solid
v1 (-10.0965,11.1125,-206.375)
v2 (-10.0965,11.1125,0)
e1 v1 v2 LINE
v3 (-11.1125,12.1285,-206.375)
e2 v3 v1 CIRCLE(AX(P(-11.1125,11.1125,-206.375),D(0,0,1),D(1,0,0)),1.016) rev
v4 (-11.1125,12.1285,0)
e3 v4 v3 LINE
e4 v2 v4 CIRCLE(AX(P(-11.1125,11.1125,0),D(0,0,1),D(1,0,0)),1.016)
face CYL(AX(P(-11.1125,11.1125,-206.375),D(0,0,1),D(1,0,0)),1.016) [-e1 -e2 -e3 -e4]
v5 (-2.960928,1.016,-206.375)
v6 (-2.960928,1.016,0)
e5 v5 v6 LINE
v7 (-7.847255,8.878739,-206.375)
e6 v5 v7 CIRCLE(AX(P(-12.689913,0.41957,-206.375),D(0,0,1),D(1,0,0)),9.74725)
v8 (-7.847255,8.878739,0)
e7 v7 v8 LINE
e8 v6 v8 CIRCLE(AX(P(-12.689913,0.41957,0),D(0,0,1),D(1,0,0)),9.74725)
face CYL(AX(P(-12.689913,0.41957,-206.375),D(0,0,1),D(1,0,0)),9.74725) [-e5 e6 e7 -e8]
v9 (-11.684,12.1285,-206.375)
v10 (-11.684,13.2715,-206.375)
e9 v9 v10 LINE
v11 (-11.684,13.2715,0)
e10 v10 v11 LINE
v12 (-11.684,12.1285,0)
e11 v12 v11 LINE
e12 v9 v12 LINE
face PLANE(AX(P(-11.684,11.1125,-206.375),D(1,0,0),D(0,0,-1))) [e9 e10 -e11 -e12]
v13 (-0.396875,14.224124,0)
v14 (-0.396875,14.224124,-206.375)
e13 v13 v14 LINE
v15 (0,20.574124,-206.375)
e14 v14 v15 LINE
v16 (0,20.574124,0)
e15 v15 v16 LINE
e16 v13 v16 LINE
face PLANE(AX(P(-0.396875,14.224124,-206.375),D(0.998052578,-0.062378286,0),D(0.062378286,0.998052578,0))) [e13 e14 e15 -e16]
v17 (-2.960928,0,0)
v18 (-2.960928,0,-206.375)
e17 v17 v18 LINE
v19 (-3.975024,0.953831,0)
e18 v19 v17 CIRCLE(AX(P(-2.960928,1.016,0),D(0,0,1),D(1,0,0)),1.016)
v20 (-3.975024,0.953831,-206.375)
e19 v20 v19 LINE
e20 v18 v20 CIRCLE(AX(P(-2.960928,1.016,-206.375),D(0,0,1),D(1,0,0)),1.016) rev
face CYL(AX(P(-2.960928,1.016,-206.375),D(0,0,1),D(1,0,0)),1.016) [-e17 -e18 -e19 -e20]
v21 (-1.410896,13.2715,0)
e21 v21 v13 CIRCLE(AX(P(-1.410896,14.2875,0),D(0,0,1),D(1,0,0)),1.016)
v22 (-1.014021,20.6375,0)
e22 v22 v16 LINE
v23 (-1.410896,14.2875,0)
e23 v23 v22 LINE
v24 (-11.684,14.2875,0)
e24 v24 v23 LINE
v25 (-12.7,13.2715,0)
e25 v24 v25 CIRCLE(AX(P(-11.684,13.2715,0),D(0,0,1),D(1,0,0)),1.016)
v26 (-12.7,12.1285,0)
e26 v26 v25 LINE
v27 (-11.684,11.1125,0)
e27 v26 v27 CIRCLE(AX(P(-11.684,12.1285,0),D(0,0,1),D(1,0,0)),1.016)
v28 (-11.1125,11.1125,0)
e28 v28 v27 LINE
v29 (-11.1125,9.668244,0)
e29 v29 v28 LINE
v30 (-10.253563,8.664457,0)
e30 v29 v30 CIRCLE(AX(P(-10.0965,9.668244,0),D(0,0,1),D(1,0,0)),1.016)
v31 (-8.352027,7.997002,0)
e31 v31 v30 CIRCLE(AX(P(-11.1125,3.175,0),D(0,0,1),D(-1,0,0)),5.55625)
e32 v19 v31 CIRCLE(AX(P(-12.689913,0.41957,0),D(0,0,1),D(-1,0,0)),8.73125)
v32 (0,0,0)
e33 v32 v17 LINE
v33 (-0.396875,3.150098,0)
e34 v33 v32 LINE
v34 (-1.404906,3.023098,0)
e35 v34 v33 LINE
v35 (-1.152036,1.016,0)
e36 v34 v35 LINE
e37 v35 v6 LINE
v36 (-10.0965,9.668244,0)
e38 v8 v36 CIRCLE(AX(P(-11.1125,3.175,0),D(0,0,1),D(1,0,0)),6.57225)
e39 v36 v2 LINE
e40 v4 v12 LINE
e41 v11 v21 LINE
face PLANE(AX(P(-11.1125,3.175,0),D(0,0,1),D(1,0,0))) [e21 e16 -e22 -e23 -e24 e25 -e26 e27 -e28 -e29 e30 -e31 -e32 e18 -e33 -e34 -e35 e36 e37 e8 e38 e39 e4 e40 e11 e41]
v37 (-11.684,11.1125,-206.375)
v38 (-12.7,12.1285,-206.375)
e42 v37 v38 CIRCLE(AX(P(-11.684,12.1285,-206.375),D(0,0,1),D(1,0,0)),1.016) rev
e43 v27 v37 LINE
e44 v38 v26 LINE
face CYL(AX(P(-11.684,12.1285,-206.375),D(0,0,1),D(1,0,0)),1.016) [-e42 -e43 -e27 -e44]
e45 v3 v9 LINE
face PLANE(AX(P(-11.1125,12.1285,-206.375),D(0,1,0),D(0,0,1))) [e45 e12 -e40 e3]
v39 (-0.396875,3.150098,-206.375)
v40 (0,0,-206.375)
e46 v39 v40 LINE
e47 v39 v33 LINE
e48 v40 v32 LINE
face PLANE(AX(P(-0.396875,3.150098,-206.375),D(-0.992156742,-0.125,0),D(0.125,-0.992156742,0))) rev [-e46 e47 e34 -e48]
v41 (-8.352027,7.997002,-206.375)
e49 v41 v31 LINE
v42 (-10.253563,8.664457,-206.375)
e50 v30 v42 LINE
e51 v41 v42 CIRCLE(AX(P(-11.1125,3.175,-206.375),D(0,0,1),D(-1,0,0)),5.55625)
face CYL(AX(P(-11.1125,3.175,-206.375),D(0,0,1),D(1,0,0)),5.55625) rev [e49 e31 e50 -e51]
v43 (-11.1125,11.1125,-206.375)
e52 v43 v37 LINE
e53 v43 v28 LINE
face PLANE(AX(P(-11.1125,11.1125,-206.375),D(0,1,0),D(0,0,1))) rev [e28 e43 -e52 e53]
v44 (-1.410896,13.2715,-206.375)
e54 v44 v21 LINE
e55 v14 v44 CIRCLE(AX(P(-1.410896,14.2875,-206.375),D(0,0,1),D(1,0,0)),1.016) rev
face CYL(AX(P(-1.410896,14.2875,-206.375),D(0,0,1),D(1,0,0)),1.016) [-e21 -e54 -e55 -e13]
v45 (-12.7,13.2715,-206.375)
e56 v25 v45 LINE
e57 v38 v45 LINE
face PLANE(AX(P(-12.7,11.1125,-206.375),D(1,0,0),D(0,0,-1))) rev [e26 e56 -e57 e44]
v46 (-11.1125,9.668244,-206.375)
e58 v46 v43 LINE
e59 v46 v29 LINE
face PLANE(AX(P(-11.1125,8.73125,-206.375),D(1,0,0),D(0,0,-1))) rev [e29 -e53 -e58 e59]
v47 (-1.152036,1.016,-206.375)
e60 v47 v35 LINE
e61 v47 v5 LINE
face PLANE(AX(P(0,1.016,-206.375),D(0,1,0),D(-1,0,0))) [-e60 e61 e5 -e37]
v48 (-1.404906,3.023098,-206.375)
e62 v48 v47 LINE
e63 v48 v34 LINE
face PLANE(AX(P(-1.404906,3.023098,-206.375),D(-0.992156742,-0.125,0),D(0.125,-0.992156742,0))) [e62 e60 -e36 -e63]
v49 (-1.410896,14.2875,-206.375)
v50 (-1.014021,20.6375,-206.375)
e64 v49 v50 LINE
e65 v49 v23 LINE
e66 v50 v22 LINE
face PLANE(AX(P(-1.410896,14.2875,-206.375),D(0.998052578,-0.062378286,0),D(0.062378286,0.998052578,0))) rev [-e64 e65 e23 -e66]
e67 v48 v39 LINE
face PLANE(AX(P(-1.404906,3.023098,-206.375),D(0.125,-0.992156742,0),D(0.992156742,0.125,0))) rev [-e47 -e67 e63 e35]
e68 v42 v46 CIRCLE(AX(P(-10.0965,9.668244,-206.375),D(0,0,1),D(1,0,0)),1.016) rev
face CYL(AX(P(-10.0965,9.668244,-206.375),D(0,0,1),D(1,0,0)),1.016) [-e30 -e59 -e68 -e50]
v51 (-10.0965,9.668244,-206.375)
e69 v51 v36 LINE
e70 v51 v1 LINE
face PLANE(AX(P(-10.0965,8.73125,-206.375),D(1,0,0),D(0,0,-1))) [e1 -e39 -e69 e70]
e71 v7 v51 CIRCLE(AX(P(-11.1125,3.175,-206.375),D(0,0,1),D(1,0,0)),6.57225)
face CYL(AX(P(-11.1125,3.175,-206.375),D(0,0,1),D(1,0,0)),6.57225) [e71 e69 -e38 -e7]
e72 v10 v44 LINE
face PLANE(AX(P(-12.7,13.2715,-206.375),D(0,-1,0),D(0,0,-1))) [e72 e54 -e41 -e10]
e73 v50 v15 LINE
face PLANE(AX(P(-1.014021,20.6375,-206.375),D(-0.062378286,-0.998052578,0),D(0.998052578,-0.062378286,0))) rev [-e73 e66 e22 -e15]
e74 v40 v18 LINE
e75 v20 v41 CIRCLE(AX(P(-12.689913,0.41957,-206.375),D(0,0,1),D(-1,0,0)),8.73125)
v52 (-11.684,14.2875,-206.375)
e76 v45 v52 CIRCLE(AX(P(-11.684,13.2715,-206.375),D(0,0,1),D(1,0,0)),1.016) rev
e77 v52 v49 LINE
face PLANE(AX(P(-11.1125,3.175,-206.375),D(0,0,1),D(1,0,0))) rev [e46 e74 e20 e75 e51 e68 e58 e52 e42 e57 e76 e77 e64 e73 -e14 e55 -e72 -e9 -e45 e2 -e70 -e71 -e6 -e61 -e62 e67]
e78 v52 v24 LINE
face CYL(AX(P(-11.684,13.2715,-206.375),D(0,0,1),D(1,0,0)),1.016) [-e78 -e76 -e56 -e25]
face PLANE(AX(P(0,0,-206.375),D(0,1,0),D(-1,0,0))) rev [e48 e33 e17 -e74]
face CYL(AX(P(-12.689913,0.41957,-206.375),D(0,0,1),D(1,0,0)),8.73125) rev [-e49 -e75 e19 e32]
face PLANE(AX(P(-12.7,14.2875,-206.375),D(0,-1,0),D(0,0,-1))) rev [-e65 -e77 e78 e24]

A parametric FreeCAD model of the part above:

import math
import FreeCAD as App
import Part
import Sketcher

V = App.Vector
Q = App.Units.Quantity


def edges_at(feature, points):
    """Names of the edges that pass closest to the given points."""
    edges = feature.Shape.Edges
    near = lambda p: min(range(len(edges)), key=lambda i: edges[i].distToShape(Part.Vertex(*p))[0])
    return sorted({f"Edge{near(p) + 1}" for p in points})

doc = App.newDocument("Part")
params = doc.addObject("Spreadsheet::Sheet", "Params")
for row, (alias, value) in enumerate([
    ("sketch1_radius", "0.21875 in"),
    ("sketch1_radius2", "0.34375 in"),
    ("sketch1_length", "0.04 in"),
    ("sketch1_width", "0.0625 in"),
    ("sketch1_width2", "0.15625 in"),
    ("pad1_length", "8.125 in"),
    ("fillet_radius", "0.04 in"),
], start=1):
    params.set(f"A{row}", alias)
    params.set(f"B{row}", "=" + value)
    params.setAlias(f"B{row}", alias)

body = doc.addObject("PartDesign::Body", "Body")

# Sketch on XY plane
sketch1 = body.newObject("Sketcher::SketchObject", "Sketch")
sketch1.AttachmentSupport = (doc.getObject("XY_Plane"), [""])
sketch1.MapMode = "FlatFace"
sketch1.addGeometry([
    Part.LineSegment(V(0, 0, 0), V(-0.4, 3.2, 0)),  # 0
    Part.LineSegment(V(-0.4, 3.2, 0), V(-1.4, 3, 0)),  # 1
    Part.LineSegment(V(-1.4, 3, 0), V(-1.2, 1, 0)),  # 2
    Part.LineSegment(V(-1.2, 1, 0), V(-3, 1, 0)),  # 3
    Part.ArcOfCircle(Part.Circle(V(-12.7, 0.4, 0), V(0, 0, 1), 9.7), math.radians(4), math.radians(60)),  # 4
    Part.ArcOfCircle(Part.Circle(V(-11.1, 3.2, 0), V(0, 0, 1), 6.6), math.radians(60), math.radians(81)),  # 5
    Part.LineSegment(V(-10.1, 9.7, 0), V(-10.1, 12.1, 0)),  # 6
    Part.LineSegment(V(-10.1, 12.1, 0), V(-11.7, 12.1, 0)),  # 7
    Part.LineSegment(V(-11.7, 12.1, 0), V(-11.7, 13.3, 0)),  # 8
    Part.LineSegment(V(-11.7, 13.3, 0), V(-0.5, 13.3, 0)),  # 9
    Part.LineSegment(V(-0.5, 13.3, 0), V(0, 20.6, 0)),  # 10
    Part.LineSegment(V(0, 20.6, 0), V(-1, 20.6, 0)),  # 11
    Part.LineSegment(V(-1, 20.6, 0), V(-1.4, 14.3, 0)),  # 12
    Part.LineSegment(V(-1.4, 14.3, 0), V(-12.7, 14.3, 0)),  # 13
    Part.LineSegment(V(-12.7, 14.3, 0), V(-12.7, 11.1, 0)),  # 14
    Part.LineSegment(V(-12.7, 11.1, 0), V(-11.1, 11.1, 0)),  # 15
    Part.LineSegment(V(-11.1, 11.1, 0), V(-11.1, 8.7, 0)),  # 16
    Part.ArcOfCircle(Part.Circle(V(-11.1, 3.2, 0), V(0, 0, 1), 5.6), math.radians(60), math.radians(90)),  # 17
    Part.ArcOfCircle(Part.Circle(V(-12.7, 0.4, 0), V(0, 0, 1), 8.7), math.radians(-3), math.radians(60)),  # 18
    Part.LineSegment(V(-4, 0, 0), V(0, 0, 0)),  # 19
], False)
sketch1.addConstraint([
    Sketcher.Constraint("Coincident", 0, 2, 1, 1),
    Sketcher.Constraint("Coincident", 1, 2, 2, 1),
    Sketcher.Constraint("Coincident", 2, 2, 3, 1),
    Sketcher.Constraint("Coincident", 3, 2, 4, 1),
    Sketcher.Constraint("Tangent", 4, 2, 5, 1),
    Sketcher.Constraint("Coincident", 5, 2, 6, 1),
    Sketcher.Constraint("Coincident", 6, 2, 7, 1),
    Sketcher.Constraint("Coincident", 7, 2, 8, 1),
    Sketcher.Constraint("Coincident", 8, 2, 9, 1),
    Sketcher.Constraint("Coincident", 9, 2, 10, 1),
    Sketcher.Constraint("Coincident", 10, 2, 11, 1),
    Sketcher.Constraint("Coincident", 11, 2, 12, 1),
    Sketcher.Constraint("Coincident", 12, 2, 13, 1),
    Sketcher.Constraint("Coincident", 13, 2, 14, 1),
    Sketcher.Constraint("Coincident", 14, 2, 15, 1),
    Sketcher.Constraint("Coincident", 15, 2, 16, 1),
    Sketcher.Constraint("Coincident", 16, 2, 17, 2),
    Sketcher.Constraint("Tangent", 17, 1, 18, 2),
    Sketcher.Constraint("Coincident", 18, 1, 19, 1),
    Sketcher.Constraint("Coincident", 19, 2, 0, 1),
    Sketcher.Constraint("Horizontal", 3),
    Sketcher.Constraint("Vertical", 6),
    Sketcher.Constraint("Horizontal", 7),
    Sketcher.Constraint("Vertical", 8),
    Sketcher.Constraint("Horizontal", 9),
    Sketcher.Constraint("Horizontal", 13),
    Sketcher.Constraint("Vertical", 14),
    Sketcher.Constraint("Horizontal", 15),
    Sketcher.Constraint("Vertical", 16),
    Sketcher.Constraint("Horizontal", 19),
    Sketcher.Constraint("Coincident", 19, 2, -1, 1),
    Sketcher.Constraint("Coincident", 17, 3, 5, 3),
    Sketcher.Constraint("Coincident", 18, 3, 4, 3),
    Sketcher.Constraint("PointOnObject", 10, 2, -2),
    Sketcher.Constraint("Perpendicular", 0, 1),
    Sketcher.Constraint("Perpendicular", 1, 2),
    Sketcher.Constraint("Perpendicular", 10, 11),
    Sketcher.Constraint("Perpendicular", 11, 12),
    Sketcher.Constraint("Vertical", 17, 3, 15, 2),
    Sketcher.Constraint("Equal", 7, 15),
    Sketcher.Constraint("Equal", 1, 11),
    Sketcher.Constraint("Radius", 17, Q("0.21875 in")),
    Sketcher.Constraint("Radius", 18, Q("0.34375 in")),
    Sketcher.Constraint("DistanceX", 13, 2, -1, 1, Q("0.5 in")),
    Sketcher.Constraint("Distance", 1, Q("0.04 in")),
    Sketcher.Constraint("DistanceX", 7, 2, 7, 1, Q("0.0625 in")),
    Sketcher.Constraint("DistanceX", 19, 1, 19, 2, Q("0.15625 in")),
    Sketcher.Constraint("DistanceY", 8, 1, 8, 2, Q("0.045 in")),
    Sketcher.Constraint("DistanceY", 14, 2, 14, 1, Q("0.125 in")),
    Sketcher.Constraint("DistanceY", 16, 2, 16, 1, Q("0.09375 in")),
    Sketcher.Constraint("DistanceY", -1, 1, 2, 2, Q("0.04 in")),
    Sketcher.Constraint("DistanceX", 7, 2, -1, 1, Q("0.46 in")),
    Sketcher.Constraint("DistanceY", 9, 2, 11, 2, Q("0.29 in")),
    Sketcher.Constraint("DistanceY", 9, 2, 12, 2, Q("0.04 in")),
    Sketcher.Constraint("Distance", 0, Q("0.125 in")),
    Sketcher.Constraint("DistanceY", -1, 1, 5, 3, Q("0.125 in")),
    Sketcher.Constraint("DistanceX", 0, 2, -1, 1, Q("0.015625 in")),
    Sketcher.Constraint("Radius", 4, Q("9.74725 mm")),
    Sketcher.Constraint("DistanceX", 12, 2, 11, 2, Q("0.015625 in")),
])
sketch1.setExpression("Constraints[41]", "Params.sketch1_radius")
sketch1.setExpression("Constraints[42]", "Params.sketch1_radius2")
sketch1.setExpression("Constraints[44]", "Params.sketch1_length")
sketch1.setExpression("Constraints[45]", "Params.sketch1_width")
sketch1.setExpression("Constraints[46]", "Params.sketch1_width2")
pad1 = body.newObject("PartDesign::Pad", "Pad")
pad1.Profile = sketch1
pad1.setExpression("Length", "Params.pad1_length")
pad1.Reversed = True
doc.recompute()

fillet = body.newObject("PartDesign::Fillet", "Fillet")
fillet.Base = (pad1, edges_at(pad1, [
    (-0.456, 13.271, -103.188),
    (-10.097, 12.129, -103.188),
    (-3.969, 0, -103.188),
    (-11.113, 8.731, -103.188),
    (-12.7, 11.113, -103.188),
    (-12.7, 14.287, -103.188),
]))
fillet.setExpression("Radius", "Params.fillet_radius")

doc.recompute()
